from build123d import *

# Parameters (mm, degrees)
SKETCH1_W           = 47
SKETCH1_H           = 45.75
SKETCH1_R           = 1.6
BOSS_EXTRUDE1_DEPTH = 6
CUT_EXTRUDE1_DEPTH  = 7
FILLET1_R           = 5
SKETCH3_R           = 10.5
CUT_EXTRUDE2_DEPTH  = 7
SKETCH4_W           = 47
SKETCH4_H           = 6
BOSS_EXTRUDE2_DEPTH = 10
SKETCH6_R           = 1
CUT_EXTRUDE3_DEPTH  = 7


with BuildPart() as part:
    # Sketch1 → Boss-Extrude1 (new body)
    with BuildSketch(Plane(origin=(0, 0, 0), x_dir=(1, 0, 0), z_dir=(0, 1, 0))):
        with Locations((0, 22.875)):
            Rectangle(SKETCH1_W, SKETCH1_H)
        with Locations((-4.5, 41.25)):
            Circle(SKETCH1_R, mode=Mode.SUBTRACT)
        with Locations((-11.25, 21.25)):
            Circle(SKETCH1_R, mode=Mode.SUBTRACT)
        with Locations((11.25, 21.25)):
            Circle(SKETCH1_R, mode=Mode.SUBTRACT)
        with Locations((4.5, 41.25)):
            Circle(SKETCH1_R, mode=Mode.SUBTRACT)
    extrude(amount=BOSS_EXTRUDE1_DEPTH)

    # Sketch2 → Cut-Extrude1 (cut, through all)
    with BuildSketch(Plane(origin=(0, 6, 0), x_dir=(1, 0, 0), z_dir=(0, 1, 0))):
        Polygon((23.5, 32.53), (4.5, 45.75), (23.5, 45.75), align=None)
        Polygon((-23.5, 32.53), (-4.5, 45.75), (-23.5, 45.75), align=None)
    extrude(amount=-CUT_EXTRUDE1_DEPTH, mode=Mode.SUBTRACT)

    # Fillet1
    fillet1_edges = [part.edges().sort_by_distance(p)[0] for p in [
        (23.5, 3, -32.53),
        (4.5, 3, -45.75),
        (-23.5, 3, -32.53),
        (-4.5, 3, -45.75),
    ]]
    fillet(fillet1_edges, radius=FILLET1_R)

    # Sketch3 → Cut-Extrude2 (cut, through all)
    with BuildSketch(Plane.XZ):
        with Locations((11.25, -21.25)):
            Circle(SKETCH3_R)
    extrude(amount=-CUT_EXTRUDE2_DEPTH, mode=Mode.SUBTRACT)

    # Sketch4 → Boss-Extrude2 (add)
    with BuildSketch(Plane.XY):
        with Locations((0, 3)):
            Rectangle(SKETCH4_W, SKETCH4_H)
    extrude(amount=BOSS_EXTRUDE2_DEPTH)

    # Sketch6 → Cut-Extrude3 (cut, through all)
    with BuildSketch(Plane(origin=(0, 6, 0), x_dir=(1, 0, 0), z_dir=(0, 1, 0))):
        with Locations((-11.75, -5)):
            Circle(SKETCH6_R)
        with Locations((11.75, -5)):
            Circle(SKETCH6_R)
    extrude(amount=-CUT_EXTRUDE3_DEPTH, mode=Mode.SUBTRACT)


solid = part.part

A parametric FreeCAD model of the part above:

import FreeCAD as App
import Part
import Sketcher
Q = App.Units.Quantity


def edges_at(feature, points):
    """Names of the edges that pass closest to the given points."""
    edges = feature.Shape.Edges
    near = lambda p: min(range(len(edges)), key=lambda i: edges[i].distToShape(Part.Vertex(*p))[0])
    return sorted({f"Edge{near(p) + 1}" for p in points})


def add_polygon(sketch, points):
    """Adds a closed chain of lines whose ends are joined by coincident constraints."""
    first, n = sketch.GeometryCount, len(points)
    for a, b in zip(points, points[1:] + points[:1]):
        sketch.addGeometry(Part.LineSegment(App.Vector(*a, 0), App.Vector(*b, 0)), False)
    for i in range(n):
        sketch.addConstraint(Sketcher.Constraint("Coincident", first + i, 2, first + (i + 1) % n, 1))

doc = App.newDocument("Part")
body = doc.addObject("PartDesign::Body", "Body")

# Sketch on XZ plane
sketch1 = body.newObject("Sketcher::SketchObject", "Sketch")
sketch1.AttachmentSupport = (doc.getObject("XZ_Plane"), [""])
sketch1.MapMode = "FlatFace"
add_polygon(sketch1, [(-23.5, -45.8), (-23.5, 0), (23.5, 0), (23.5, -45.8)])  # lines 0-3
sketch1.addGeometry(Part.Circle(App.Vector(-11.2, -21.2, 0), App.Vector(0, 0, 1), 1.6), False)  # 4
sketch1.addGeometry(Part.Circle(App.Vector(11.2, -21.2, 0), App.Vector(0, 0, 1), 1.6), False)  # 5
sketch1.addGeometry(Part.Circle(App.Vector(-4.5, -41.2, 0), App.Vector(0, 0, 1), 1.6), False)  # 6
sketch1.addGeometry(Part.Circle(App.Vector(4.5, -41.2, 0), App.Vector(0, 0, 1), 1.6), False)  # 7
sketch1.addConstraint([
    Sketcher.Constraint("Vertical", 0),
    Sketcher.Constraint("Horizontal", 1),
    Sketcher.Constraint("Vertical", 2),
    Sketcher.Constraint("Horizontal", 3),
    Sketcher.Constraint("Equal", 4, 5),
    Sketcher.Constraint("Equal", 5, 6),
    Sketcher.Constraint("Equal", 6, 7),
    Sketcher.Constraint("Symmetric", 0, 2, 1, 2, -1, 1),
    Sketcher.Constraint("Symmetric", 4, 3, 5, 3, -2),
    Sketcher.Constraint("Symmetric", 6, 3, 7, 3, -2),
    Sketcher.Constraint("Diameter", 4, Q("3.2 mm")),
    Sketcher.Constraint("DistanceX", 1, 1, 1, 2, Q("47 mm")),
    Sketcher.Constraint("DistanceY", 6, 3, 4, 3, Q("20 mm")),
    Sketcher.Constraint("DistanceX", 6, 3, 7, 3, Q("9 mm")),
    Sketcher.Constraint("DistanceY", 0, 1, 0, 2, Q("45.75 mm")),
    Sketcher.Constraint("DistanceX", 4, 3, 5, 3, Q("22.5 mm")),
    Sketcher.Constraint("DistanceY", 2, 2, 7, 3, Q("4.5 mm")),
])
pad1 = body.newObject("PartDesign::Pad", "Pad")
pad1.Profile = sketch1
pad1.Length = 6
pad1.Reversed = True

# Sketch on XZ plane
sketch2 = body.newObject("Sketcher::SketchObject", "Sketch001")
sketch2.AttachmentSupport = (doc.getObject("XZ_Plane"), [""])
sketch2.MapMode = "FlatFace"
sketch2.AttachmentOffset = App.Placement(App.Vector(0, 0, -6), App.Rotation())
add_polygon(sketch2, [(4, -46), (24, -33), (24, -46)])  # lines 0-2
add_polygon(sketch2, [(-24, -33), (-4, -46), (-24, -46)])  # lines 3-5
sketch2.addConstraint([
    Sketcher.Constraint("Vertical", 1),
    Sketcher.Constraint("Horizontal", 2),
    Sketcher.Constraint("Horizontal", 4),
    Sketcher.Constraint("Vertical", 5),
    Sketcher.Constraint("Symmetric", 2, 2, 3, 2, -2),
    Sketcher.Constraint("Symmetric", 0, 2, 5, 2, -2),
    Sketcher.Constraint("DistanceX", 2, 2, 2, 1, Q("19 mm")),
    Sketcher.Constraint("DistanceX", 3, 2, 2, 2, Q("9 mm")),
    Sketcher.Constraint("DistanceY", 1, 2, 1, 1, Q("13.22 mm")),
    Sketcher.Constraint("DistanceY", 0, 2, -1, 1, Q("32.53 mm")),
])
pocket1 = body.newObject("PartDesign::Pocket", "Pocket")
pocket1.Profile = sketch2
pocket1.Type = "ThroughAll"
pocket1.Reversed = True
doc.recompute()

fillet = body.newObject("PartDesign::Fillet", "Fillet")
fillet.Base = (pocket1, edges_at(pocket1, [
    (23.5, 3, -32.53),
    (4.5, 3, -45.75),
    (-23.5, 3, -32.53),
    (-4.5, 3, -45.75),
]))
fillet.Radius = 5

# Sketch on XZ plane
sketch3 = body.newObject("Sketcher::SketchObject", "Sketch002")
sketch3.AttachmentSupport = (doc.getObject("XZ_Plane"), [""])
sketch3.MapMode = "FlatFace"
sketch3.addGeometry(Part.Circle(App.Vector(11, -21, 0), App.Vector(0, 0, 1), 10), False)
sketch3.addConstraint([
    Sketcher.Constraint("Diameter", 0, Q("21 mm")),
    Sketcher.Constraint("DistanceX", -1, 1, 0, 3, Q("11.25 mm")),
    Sketcher.Constraint("DistanceY", 0, 3, -1, 1, Q("21.25 mm")),
])
pocket2 = body.newObject("PartDesign::Pocket", "Pocket001")
pocket2.Profile = sketch3
pocket2.Type = "ThroughAll"

# Sketch on XY plane
sketch4 = body.newObject("Sketcher::SketchObject", "Sketch003")
sketch4.AttachmentSupport = (doc.getObject("XY_Plane"), [""])
sketch4.MapMode = "FlatFace"
add_polygon(sketch4, [(-24, 6), (-24, 0), (24, 0), (24, 6)])  # lines 0-3
sketch4.addConstraint([
    Sketcher.Constraint("Vertical", 0),
    Sketcher.Constraint("Horizontal", 1),
    Sketcher.Constraint("Vertical", 2),
    Sketcher.Constraint("Horizontal", 3),
    Sketcher.Constraint("Symmetric", 0, 2, 1, 2, -1, 1),
    Sketcher.Constraint("DistanceX", 1, 1, 1, 2, Q("47 mm")),
    Sketcher.Constraint("DistanceY", 0, 2, 0, 1, Q("6 mm")),
])
pad2 = body.newObject("PartDesign::Pad", "Pad001")
pad2.Profile = sketch4
pad2.Length = 10

# Sketch on XZ plane
sketch5 = body.newObject("Sketcher::SketchObject", "Sketch004")
sketch5.AttachmentSupport = (doc.getObject("XZ_Plane"), [""])
sketch5.MapMode = "FlatFace"
sketch5.AttachmentOffset = App.Placement(App.Vector(0, 0, -6), App.Rotation())
sketch5.addGeometry([
    Part.Circle(App.Vector(-11.8, 5, 0), App.Vector(0, 0, 1), 1),
    Part.Circle(App.Vector(11.8, 5, 0), App.Vector(0, 0, 1), 1),
], False)
sketch5.addConstraint([
    Sketcher.Constraint("Equal", 0, 1),
    Sketcher.Constraint("Symmetric", 0, 3, 1, 3, -2),
    Sketcher.Constraint("Diameter", 0, Q("2 mm")),
    Sketcher.Constraint("DistanceY", -1, 1, 0, 3, Q("5 mm")),
    Sketcher.Constraint("DistanceX", 0, 3, 1, 3, Q("23.5 mm")),
])
pocket3 = body.newObject("PartDesign::Pocket", "Pocket002")
pocket3.Profile = sketch5
pocket3.Type = "ThroughAll"
pocket3.Reversed = True

doc.recompute()
